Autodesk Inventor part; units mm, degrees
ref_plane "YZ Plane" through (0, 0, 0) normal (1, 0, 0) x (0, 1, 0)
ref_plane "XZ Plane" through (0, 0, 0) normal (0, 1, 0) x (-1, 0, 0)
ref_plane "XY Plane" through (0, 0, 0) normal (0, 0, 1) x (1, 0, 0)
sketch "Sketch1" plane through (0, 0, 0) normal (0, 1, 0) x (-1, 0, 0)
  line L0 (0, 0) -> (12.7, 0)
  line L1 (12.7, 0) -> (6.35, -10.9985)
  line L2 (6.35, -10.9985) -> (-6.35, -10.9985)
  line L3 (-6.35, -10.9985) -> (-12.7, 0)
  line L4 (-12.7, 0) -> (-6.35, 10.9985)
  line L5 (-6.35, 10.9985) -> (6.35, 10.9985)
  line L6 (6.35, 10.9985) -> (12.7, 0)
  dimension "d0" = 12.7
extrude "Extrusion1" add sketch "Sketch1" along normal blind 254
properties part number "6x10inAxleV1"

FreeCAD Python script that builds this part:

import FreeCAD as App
import Part
import Sketcher

V = App.Vector
Q = App.Units.Quantity


def add_polygon(sketch, points):
    """Adds a closed chain of lines whose ends are joined by coincident constraints."""
    first, n = sketch.GeometryCount, len(points)
    for a, b in zip(points, points[1:] + points[:1]):
        sketch.addGeometry(Part.LineSegment(App.Vector(*a, 0), App.Vector(*b, 0)), False)
    for i in range(n):
        sketch.addConstraint(Sketcher.Constraint("Coincident", first + i, 2, first + (i + 1) % n, 1))

doc = App.newDocument("Part")
body = doc.addObject("PartDesign::Body", "Body")

# Sketch on XZ plane
sketch1 = doc.addObject("Sketcher::SketchObject", "Sketch")
body.addObject(sketch1)
sketch1.AttachmentSupport = (doc.XZ_Plane, [""])
sketch1.MapMode = "FlatFace"
add_polygon(sketch1, [(-6, -11), (-13, 0), (-6, 11), (6, 11), (13, 0), (6, -11)])  # lines 0-5
sketch1.addConstraint([
    Sketcher.Constraint("Horizontal", 2),
    Sketcher.Constraint("Horizontal", 5),
    Sketcher.Constraint("Symmetric", 0, 2, 3, 2, -1, 1),
    Sketcher.Constraint("Symmetric", 1, 2, 4, 2, -1, 1),
    Sketcher.Constraint("PointOnObject", 0, 2, -1),
    Sketcher.Constraint("Parallel", 0, 3),
    Sketcher.Constraint("Vertical", 2, 2, 4, 2),
    Sketcher.Constraint("DistanceX", 2, 1, 2, 2, Q("0.5 in")),
    Sketcher.Constraint("Distance", 0, Q("0.5 in")),
    Sketcher.Constraint("DistanceX", 0, 2, -1, 1, Q("0.5 in")),
])
pad1 = doc.addObject("PartDesign::Pad", "Pad")
body.addObject(pad1)
pad1.Profile = sketch1
pad1.Length = Q("10 in")
pad1.Reversed = True

doc.recompute()
